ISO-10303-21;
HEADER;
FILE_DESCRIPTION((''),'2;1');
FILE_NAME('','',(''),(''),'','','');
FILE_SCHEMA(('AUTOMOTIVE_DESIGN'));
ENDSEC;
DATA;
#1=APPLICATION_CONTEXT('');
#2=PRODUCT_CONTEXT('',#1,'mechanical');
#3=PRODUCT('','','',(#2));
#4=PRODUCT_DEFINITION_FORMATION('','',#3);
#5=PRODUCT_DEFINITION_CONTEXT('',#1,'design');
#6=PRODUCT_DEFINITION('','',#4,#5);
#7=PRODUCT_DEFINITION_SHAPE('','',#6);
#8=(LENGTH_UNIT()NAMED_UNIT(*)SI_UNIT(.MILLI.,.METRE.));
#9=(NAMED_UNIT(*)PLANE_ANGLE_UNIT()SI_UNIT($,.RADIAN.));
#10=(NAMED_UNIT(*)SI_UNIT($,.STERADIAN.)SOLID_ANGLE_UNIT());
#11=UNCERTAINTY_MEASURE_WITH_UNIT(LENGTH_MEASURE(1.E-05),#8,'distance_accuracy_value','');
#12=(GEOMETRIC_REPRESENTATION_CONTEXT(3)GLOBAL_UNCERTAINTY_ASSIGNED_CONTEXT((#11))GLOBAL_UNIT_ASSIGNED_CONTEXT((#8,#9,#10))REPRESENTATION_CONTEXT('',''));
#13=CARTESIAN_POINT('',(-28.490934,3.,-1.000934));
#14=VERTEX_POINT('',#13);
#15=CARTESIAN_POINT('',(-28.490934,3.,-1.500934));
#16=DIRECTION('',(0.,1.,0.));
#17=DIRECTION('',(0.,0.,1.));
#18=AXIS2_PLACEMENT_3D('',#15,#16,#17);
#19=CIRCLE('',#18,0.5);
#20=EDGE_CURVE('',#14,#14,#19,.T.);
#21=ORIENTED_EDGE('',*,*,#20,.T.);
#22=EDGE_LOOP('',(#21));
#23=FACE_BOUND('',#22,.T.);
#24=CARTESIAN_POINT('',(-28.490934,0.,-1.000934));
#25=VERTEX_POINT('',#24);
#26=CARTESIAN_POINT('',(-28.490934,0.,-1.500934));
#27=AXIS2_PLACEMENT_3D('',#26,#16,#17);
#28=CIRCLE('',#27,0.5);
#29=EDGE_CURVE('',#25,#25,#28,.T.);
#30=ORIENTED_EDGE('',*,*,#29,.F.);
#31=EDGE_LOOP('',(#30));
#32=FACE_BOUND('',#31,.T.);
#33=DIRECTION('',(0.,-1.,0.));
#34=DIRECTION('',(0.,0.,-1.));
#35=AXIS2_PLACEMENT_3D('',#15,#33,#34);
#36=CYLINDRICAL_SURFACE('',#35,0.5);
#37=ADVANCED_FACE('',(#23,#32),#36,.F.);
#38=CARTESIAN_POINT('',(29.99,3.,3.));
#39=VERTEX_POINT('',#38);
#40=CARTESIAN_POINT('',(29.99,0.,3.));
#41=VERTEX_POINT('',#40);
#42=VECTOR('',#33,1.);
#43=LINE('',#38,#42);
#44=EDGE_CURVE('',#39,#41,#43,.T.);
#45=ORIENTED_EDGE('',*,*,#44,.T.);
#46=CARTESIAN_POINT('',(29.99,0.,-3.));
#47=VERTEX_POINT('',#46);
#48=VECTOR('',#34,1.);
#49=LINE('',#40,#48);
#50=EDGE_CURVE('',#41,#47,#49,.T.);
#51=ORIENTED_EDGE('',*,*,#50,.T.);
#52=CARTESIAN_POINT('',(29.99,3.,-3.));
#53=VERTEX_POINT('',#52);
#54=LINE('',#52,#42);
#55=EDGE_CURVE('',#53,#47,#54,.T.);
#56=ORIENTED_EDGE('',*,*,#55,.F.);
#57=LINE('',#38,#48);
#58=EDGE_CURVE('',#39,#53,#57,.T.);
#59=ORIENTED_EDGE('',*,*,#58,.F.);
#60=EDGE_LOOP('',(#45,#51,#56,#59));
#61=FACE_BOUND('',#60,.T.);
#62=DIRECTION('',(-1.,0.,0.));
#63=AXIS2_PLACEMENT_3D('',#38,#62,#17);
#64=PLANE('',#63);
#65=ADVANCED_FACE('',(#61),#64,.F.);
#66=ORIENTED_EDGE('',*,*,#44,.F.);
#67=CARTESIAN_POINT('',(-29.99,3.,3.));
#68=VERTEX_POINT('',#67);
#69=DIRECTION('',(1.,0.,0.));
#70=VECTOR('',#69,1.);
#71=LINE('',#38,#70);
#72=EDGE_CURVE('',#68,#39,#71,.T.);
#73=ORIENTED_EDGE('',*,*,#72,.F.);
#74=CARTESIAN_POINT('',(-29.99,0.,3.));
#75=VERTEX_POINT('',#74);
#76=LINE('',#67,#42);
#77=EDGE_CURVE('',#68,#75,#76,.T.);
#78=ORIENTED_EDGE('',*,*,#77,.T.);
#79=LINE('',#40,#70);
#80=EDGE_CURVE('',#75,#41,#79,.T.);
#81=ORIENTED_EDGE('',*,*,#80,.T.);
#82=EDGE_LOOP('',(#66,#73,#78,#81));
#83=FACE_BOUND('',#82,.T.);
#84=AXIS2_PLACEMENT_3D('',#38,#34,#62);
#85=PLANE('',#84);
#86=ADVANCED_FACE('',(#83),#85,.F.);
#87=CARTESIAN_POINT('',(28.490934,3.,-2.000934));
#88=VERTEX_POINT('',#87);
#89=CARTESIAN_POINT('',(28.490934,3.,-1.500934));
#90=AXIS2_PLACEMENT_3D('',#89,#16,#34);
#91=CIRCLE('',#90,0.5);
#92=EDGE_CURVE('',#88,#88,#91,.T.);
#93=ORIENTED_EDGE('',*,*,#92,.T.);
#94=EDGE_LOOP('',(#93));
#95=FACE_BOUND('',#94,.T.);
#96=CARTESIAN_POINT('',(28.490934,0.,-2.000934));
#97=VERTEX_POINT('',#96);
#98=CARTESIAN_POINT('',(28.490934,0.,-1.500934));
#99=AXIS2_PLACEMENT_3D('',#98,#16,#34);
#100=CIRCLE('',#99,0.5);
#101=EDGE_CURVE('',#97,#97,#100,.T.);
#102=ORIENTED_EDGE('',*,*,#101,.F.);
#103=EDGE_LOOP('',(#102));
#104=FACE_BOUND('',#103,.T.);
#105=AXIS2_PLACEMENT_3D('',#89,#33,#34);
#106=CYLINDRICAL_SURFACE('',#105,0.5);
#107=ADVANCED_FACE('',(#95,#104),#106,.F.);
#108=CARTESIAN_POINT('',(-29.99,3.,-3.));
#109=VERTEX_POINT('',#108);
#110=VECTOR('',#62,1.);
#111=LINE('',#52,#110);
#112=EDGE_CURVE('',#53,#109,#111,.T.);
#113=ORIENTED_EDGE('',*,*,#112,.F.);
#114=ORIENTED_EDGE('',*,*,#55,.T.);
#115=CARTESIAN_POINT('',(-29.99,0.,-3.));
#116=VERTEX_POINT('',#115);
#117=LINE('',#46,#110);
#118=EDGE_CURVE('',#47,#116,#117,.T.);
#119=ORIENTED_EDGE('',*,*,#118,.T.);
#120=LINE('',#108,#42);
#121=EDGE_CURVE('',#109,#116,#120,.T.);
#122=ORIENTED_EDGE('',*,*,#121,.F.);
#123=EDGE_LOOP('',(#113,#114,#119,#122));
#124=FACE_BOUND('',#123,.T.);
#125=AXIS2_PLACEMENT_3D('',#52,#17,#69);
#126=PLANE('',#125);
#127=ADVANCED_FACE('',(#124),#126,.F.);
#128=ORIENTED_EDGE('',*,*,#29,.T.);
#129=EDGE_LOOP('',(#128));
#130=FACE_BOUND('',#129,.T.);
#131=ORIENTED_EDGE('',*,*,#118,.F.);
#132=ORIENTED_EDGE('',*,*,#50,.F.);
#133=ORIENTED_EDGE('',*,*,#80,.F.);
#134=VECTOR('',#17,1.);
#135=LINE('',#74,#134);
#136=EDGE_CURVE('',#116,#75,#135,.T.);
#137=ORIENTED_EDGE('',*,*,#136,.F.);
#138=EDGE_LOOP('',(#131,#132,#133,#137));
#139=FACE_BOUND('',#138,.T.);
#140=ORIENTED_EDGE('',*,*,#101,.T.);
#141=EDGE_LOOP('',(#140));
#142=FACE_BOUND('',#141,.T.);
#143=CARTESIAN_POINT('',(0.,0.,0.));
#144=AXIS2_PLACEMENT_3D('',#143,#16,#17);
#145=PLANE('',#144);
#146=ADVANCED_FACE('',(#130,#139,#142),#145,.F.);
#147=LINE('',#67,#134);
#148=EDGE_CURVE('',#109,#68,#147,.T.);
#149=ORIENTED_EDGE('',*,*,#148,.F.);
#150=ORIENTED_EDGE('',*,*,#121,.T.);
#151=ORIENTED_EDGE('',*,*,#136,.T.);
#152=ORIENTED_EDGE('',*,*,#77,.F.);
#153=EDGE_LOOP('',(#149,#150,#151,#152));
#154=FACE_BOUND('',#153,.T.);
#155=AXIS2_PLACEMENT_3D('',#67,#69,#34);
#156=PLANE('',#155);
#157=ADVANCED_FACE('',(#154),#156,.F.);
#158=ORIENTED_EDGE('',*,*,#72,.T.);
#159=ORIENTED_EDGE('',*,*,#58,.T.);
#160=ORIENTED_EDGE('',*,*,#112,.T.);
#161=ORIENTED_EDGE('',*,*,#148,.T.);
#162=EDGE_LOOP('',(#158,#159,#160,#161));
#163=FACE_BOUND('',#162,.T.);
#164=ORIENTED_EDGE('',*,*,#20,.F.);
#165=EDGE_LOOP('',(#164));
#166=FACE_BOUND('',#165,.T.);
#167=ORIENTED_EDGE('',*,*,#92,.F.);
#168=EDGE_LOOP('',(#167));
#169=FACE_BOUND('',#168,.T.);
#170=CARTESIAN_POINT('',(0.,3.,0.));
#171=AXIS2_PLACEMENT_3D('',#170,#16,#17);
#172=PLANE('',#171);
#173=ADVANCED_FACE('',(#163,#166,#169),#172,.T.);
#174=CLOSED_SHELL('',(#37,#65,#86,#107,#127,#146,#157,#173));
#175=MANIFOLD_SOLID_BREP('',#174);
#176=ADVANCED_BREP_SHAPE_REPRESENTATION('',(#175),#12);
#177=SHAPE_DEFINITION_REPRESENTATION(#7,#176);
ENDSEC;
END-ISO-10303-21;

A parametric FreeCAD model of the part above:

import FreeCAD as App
import Part
import Sketcher

V = App.Vector


def add_polygon(sketch, points):
    """Adds a closed chain of lines whose ends are joined by coincident constraints."""
    first, n = sketch.GeometryCount, len(points)
    for a, b in zip(points, points[1:] + points[:1]):
        sketch.addGeometry(Part.LineSegment(App.Vector(*a, 0), App.Vector(*b, 0)), False)
    for i in range(n):
        sketch.addConstraint(Sketcher.Constraint("Coincident", first + i, 2, first + (i + 1) % n, 1))

doc = App.newDocument("Part")
body = doc.addObject("PartDesign::Body", "Body")

# Sketch on XZ plane
sketch1 = doc.addObject("Sketcher::SketchObject", "Sketch")
body.addObject(sketch1)
sketch1.AttachmentSupport = (doc.XZ_Plane, [""])
sketch1.MapMode = "FlatFace"
add_polygon(sketch1, [(-30, -3), (-30, 3), (30, 3), (30, -3)])  # lines 0-3
sketch1.addGeometry(Part.Circle(V(-28.5, -1.5, 0), V(0, 0, 1), 0.5), False)  # 4
sketch1.addGeometry(Part.Circle(V(28.5, -1.5, 0), V(0, 0, 1), 0.5), False)  # 5
sketch1.addConstraint(Sketcher.Constraint("Vertical", 0))
sketch1.addConstraint(Sketcher.Constraint("Horizontal", 1))
sketch1.addConstraint(Sketcher.Constraint("Vertical", 2))
sketch1.addConstraint(Sketcher.Constraint("Horizontal", 3))
sketch1.addConstraint(Sketcher.Constraint("Equal", 4, 5))
sketch1.addConstraint(Sketcher.Constraint("Symmetric", 0, 2, 2, 2, -1, 1))
sketch1.addConstraint(Sketcher.Constraint("Symmetric", 4, 3, 5, 3, -2))
sketch1.addConstraint(Sketcher.Constraint("Diameter", 4, 1.0))
sketch1.addConstraint(Sketcher.Constraint("DistanceY", 0, 1, 0, 2, 6.0))
sketch1.addConstraint(Sketcher.Constraint("DistanceX", 1, 1, 1, 2, 59.98))
sketch1.addConstraint(Sketcher.Constraint("DistanceX", 4, 3, -1, 1, 28.490934))
sketch1.addConstraint(Sketcher.Constraint("DistanceY", 4, 3, -1, 1, 1.500934))
pad1 = doc.addObject("PartDesign::Pad", "Pad")
body.addObject(pad1)
pad1.Profile = sketch1
pad1.Length = 3
pad1.Reversed = True

doc.recompute()
